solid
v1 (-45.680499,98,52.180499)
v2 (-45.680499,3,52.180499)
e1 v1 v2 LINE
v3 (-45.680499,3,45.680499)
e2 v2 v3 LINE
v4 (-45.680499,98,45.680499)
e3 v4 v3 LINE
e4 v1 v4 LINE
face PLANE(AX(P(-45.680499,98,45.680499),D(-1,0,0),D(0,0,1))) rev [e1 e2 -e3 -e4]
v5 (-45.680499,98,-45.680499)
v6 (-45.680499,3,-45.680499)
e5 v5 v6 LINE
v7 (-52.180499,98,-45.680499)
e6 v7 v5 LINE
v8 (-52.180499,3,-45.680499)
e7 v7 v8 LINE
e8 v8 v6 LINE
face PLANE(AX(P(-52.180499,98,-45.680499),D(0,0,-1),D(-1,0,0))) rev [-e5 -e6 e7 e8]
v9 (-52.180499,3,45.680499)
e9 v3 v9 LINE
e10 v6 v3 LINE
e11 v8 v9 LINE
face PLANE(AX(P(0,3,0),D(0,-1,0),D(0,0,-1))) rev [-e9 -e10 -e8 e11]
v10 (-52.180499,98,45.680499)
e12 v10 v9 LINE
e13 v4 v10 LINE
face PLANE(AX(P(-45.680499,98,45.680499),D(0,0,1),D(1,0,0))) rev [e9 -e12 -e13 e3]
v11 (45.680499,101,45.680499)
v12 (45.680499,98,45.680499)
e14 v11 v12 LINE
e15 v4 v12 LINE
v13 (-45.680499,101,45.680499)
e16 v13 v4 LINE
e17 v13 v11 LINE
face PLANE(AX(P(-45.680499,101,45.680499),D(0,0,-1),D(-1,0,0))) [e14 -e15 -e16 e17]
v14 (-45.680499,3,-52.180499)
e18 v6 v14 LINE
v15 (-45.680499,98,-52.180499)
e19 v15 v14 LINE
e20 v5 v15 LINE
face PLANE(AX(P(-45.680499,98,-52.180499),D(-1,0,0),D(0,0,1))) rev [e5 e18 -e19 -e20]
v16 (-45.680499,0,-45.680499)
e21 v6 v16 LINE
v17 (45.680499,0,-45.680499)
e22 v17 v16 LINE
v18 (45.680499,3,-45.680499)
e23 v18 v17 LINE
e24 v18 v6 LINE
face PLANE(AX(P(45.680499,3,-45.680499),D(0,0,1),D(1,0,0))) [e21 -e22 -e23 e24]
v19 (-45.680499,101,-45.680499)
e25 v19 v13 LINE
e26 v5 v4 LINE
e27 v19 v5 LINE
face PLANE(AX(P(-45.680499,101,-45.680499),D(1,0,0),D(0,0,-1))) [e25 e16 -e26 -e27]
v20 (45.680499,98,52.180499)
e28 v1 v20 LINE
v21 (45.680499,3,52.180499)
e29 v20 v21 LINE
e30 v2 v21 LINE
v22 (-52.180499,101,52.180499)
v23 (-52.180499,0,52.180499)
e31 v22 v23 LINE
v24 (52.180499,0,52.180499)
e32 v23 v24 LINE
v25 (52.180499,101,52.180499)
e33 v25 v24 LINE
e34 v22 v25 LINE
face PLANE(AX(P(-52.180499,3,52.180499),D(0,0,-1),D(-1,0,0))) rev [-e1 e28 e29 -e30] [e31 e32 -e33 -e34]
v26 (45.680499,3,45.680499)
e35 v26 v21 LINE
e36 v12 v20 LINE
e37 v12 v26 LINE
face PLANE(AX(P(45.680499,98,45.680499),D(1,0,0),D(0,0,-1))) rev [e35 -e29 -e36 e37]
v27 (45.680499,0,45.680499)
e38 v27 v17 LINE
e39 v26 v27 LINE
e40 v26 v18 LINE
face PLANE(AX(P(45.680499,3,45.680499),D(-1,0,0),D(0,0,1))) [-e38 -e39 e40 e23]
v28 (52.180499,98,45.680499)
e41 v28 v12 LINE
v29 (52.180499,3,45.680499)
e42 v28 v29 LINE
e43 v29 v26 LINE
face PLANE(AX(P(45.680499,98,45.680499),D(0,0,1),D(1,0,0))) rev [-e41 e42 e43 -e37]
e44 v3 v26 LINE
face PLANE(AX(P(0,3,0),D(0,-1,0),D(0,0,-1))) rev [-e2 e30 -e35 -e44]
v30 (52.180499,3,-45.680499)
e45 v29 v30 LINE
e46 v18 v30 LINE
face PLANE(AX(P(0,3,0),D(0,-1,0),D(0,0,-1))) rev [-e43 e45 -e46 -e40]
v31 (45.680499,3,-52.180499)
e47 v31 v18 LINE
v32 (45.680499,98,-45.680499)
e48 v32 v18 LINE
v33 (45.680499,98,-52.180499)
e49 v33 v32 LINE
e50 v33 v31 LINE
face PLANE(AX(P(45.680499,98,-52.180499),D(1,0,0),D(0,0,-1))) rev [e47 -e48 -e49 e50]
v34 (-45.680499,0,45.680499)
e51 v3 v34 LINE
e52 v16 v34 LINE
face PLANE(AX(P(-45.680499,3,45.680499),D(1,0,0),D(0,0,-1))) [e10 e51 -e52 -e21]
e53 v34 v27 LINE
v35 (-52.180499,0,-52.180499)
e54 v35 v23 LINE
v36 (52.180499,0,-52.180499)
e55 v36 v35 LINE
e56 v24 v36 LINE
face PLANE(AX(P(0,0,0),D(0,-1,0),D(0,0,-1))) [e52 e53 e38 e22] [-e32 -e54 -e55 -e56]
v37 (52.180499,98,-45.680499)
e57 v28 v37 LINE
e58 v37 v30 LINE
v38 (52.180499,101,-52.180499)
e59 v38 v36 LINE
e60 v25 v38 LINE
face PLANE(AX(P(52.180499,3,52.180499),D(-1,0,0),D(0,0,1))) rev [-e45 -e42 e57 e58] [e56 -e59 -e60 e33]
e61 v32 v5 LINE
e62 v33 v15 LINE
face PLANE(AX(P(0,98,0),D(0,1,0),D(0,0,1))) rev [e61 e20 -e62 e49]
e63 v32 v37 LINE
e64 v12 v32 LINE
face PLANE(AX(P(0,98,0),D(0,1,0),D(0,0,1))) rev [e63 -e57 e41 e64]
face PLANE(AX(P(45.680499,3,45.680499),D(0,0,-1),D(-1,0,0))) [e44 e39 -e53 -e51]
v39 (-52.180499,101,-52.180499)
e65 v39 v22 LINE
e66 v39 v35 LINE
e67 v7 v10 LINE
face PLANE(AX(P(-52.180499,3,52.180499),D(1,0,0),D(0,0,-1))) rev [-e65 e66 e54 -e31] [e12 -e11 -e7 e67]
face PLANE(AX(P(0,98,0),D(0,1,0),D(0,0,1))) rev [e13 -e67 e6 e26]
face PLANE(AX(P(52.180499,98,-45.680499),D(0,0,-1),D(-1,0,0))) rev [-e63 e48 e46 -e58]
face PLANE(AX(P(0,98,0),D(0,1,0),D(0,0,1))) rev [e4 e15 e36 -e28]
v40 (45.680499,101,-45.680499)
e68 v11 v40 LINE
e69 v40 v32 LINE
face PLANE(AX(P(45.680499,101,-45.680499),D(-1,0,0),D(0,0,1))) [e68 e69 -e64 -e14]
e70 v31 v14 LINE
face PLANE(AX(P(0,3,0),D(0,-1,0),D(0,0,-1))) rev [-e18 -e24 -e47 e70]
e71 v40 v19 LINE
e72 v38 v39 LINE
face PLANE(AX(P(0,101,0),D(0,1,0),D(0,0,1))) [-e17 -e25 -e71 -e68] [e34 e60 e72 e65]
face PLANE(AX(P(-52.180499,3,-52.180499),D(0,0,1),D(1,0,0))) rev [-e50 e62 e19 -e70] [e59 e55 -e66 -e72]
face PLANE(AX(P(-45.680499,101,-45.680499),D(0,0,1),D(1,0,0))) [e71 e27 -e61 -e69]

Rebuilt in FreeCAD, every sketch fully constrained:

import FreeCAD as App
import Part
import Sketcher
from FreeCAD import Vector
Q = App.Units.Quantity


def add_polygon(sketch, points):
    """Adds a closed chain of lines whose ends are joined by coincident constraints."""
    first, n = sketch.GeometryCount, len(points)
    for a, b in zip(points, points[1:] + points[:1]):
        sketch.addGeometry(Part.LineSegment(App.Vector(*a, 0), App.Vector(*b, 0)), False)
    for i in range(n):
        sketch.addConstraint(Sketcher.Constraint("Coincident", first + i, 2, first + (i + 1) % n, 1))

doc = App.newDocument("Part")
params = doc.addObject("Spreadsheet::Sheet", "Params")
for row, (alias, value) in enumerate([
    ("pad1_length", "3 mm"),
    ("sketch2_width", "6.5 mm"),
    ("pad2_length", "95 mm"),
    ("pad3_length", "3 mm"),
], start=1):
    params.set(f"A{row}", alias)
    params.set(f"B{row}", "=" + value)
    params.setAlias(f"B{row}", alias)

body = doc.addObject("PartDesign::Body", "Body")

# Sketch on XZ plane
sketch1 = doc.addObject("Sketcher::SketchObject", "Sketch")
body.addObject(sketch1)
sketch1.AttachmentSupport = (doc.XZ_Plane, [""])
sketch1.MapMode = "FlatFace"
add_polygon(sketch1, [(-52, -52), (-52, 52), (52, 52), (52, -52)])  # lines 0-3
add_polygon(sketch1, [(46, 46), (-46, 46), (-46, -46), (46, -46)])  # lines 4-7
sketch1.addConstraint([
    Sketcher.Constraint("Vertical", 0),
    Sketcher.Constraint("Horizontal", 1),
    Sketcher.Constraint("Vertical", 2),
    Sketcher.Constraint("Horizontal", 3),
    Sketcher.Constraint("Horizontal", 4),
    Sketcher.Constraint("Vertical", 5),
    Sketcher.Constraint("Horizontal", 6),
    Sketcher.Constraint("Vertical", 7),
    Sketcher.Constraint("Symmetric", 0, 2, 2, 2, -1, 1),
    Sketcher.Constraint("Symmetric", 4, 2, 6, 2, -1, 1),
    Sketcher.Constraint("Equal", 3, 0),
    Sketcher.Constraint("Equal", 6, 5),
    Sketcher.Constraint("DistanceX", 0, 2, 4, 2, Q("6.5 mm")),
    Sketcher.Constraint("DistanceX", 0, 2, -1, 1, Q("52.180499 mm")),
])
pad1 = doc.addObject("PartDesign::Pad", "Pad")
body.addObject(pad1)
pad1.Profile = sketch1
pad1.setExpression("Length", "Params.pad1_length")
pad1.Reversed = True

# Sketch on XZ plane
sketch2 = doc.addObject("Sketcher::SketchObject", "Sketch001")
body.addObject(sketch2)
sketch2.AttachmentSupport = (doc.XZ_Plane, [""])
sketch2.MapMode = "FlatFace"
sketch2.AttachmentOffset = App.Placement(Vector(0, 0, -3), App.Rotation())
add_polygon(sketch2, [(-52, -52), (-52, -46), (-46, -46), (-46, -52)])  # lines 0-3
add_polygon(sketch2, [(46, -52), (46, -46), (52, -46), (52, -52)])  # lines 4-7
add_polygon(sketch2, [(-52, 46), (-52, 52), (-46, 52), (-46, 46)])  # lines 8-11
add_polygon(sketch2, [(46, 46), (46, 52), (52, 52), (52, 46)])  # lines 12-15
sketch2.addConstraint([
    Sketcher.Constraint("Vertical", 0),
    Sketcher.Constraint("Horizontal", 1),
    Sketcher.Constraint("Vertical", 2),
    Sketcher.Constraint("Horizontal", 3),
    Sketcher.Constraint("Vertical", 4),
    Sketcher.Constraint("Horizontal", 5),
    Sketcher.Constraint("Vertical", 6),
    Sketcher.Constraint("Horizontal", 7),
    Sketcher.Constraint("Vertical", 8),
    Sketcher.Constraint("Horizontal", 9),
    Sketcher.Constraint("Vertical", 10),
    Sketcher.Constraint("Horizontal", 11),
    Sketcher.Constraint("Vertical", 12),
    Sketcher.Constraint("Horizontal", 13),
    Sketcher.Constraint("Vertical", 14),
    Sketcher.Constraint("Horizontal", 15),
    Sketcher.Constraint("Symmetric", 6, 2, 8, 2, -1, 1),
    Sketcher.Constraint("Symmetric", 4, 2, 10, 2, -1, 1),
    Sketcher.Constraint("Symmetric", 2, 2, 12, 2, -1, 1),
    Sketcher.Constraint("Symmetric", 0, 2, 14, 2, -1, 1),
    Sketcher.Constraint("Symmetric", 1, 2, 4, 2, -2),
    Sketcher.Constraint("Symmetric", 3, 2, 6, 2, -2),
    Sketcher.Constraint("Equal", 15, 0),
    Sketcher.Constraint("DistanceX", 1, 1, 1, 2, Q("6.5 mm")),
    Sketcher.Constraint("DistanceX", 0, 2, -1, 1, Q("52.180499 mm")),
    Sketcher.Constraint("DistanceY", 0, 2, -1, 1, Q("45.680499 mm")),
])
sketch2.setExpression("Constraints[39]", "Params.sketch2_width")
pad2 = doc.addObject("PartDesign::Pad", "Pad001")
body.addObject(pad2)
pad2.Profile = sketch2
pad2.setExpression("Length", "Params.pad2_length")
pad2.Reversed = True

# Sketch on XZ plane
sketch3 = doc.addObject("Sketcher::SketchObject", "Sketch002")
body.addObject(sketch3)
sketch3.AttachmentSupport = (doc.XZ_Plane, [""])
sketch3.MapMode = "FlatFace"
sketch3.AttachmentOffset = App.Placement(Vector(0, 0, -98), App.Rotation())
add_polygon(sketch3, [(-52, -52), (-52, 52), (52, 52), (52, -52)])  # lines 0-3
add_polygon(sketch3, [(46, 46), (-46, 46), (-46, -46), (46, -46)])  # lines 4-7
sketch3.addConstraint([
    Sketcher.Constraint("Vertical", 0),
    Sketcher.Constraint("Horizontal", 1),
    Sketcher.Constraint("Vertical", 2),
    Sketcher.Constraint("Horizontal", 3),
    Sketcher.Constraint("Horizontal", 4),
    Sketcher.Constraint("Vertical", 5),
    Sketcher.Constraint("Horizontal", 6),
    Sketcher.Constraint("Vertical", 7),
    Sketcher.Constraint("Symmetric", 0, 2, 2, 2, -1, 1),
    Sketcher.Constraint("Symmetric", 4, 2, 6, 2, -1, 1),
    Sketcher.Constraint("Equal", 3, 0),
    Sketcher.Constraint("Equal", 6, 5),
    Sketcher.Constraint("DistanceX", 0, 2, 4, 2, Q("6.5 mm")),
    Sketcher.Constraint("DistanceX", 0, 2, -1, 1, Q("52.180499 mm")),
])
pad3 = doc.addObject("PartDesign::Pad", "Pad002")
body.addObject(pad3)
pad3.Profile = sketch3
pad3.setExpression("Length", "Params.pad3_length")
pad3.Reversed = True

doc.recompute()
